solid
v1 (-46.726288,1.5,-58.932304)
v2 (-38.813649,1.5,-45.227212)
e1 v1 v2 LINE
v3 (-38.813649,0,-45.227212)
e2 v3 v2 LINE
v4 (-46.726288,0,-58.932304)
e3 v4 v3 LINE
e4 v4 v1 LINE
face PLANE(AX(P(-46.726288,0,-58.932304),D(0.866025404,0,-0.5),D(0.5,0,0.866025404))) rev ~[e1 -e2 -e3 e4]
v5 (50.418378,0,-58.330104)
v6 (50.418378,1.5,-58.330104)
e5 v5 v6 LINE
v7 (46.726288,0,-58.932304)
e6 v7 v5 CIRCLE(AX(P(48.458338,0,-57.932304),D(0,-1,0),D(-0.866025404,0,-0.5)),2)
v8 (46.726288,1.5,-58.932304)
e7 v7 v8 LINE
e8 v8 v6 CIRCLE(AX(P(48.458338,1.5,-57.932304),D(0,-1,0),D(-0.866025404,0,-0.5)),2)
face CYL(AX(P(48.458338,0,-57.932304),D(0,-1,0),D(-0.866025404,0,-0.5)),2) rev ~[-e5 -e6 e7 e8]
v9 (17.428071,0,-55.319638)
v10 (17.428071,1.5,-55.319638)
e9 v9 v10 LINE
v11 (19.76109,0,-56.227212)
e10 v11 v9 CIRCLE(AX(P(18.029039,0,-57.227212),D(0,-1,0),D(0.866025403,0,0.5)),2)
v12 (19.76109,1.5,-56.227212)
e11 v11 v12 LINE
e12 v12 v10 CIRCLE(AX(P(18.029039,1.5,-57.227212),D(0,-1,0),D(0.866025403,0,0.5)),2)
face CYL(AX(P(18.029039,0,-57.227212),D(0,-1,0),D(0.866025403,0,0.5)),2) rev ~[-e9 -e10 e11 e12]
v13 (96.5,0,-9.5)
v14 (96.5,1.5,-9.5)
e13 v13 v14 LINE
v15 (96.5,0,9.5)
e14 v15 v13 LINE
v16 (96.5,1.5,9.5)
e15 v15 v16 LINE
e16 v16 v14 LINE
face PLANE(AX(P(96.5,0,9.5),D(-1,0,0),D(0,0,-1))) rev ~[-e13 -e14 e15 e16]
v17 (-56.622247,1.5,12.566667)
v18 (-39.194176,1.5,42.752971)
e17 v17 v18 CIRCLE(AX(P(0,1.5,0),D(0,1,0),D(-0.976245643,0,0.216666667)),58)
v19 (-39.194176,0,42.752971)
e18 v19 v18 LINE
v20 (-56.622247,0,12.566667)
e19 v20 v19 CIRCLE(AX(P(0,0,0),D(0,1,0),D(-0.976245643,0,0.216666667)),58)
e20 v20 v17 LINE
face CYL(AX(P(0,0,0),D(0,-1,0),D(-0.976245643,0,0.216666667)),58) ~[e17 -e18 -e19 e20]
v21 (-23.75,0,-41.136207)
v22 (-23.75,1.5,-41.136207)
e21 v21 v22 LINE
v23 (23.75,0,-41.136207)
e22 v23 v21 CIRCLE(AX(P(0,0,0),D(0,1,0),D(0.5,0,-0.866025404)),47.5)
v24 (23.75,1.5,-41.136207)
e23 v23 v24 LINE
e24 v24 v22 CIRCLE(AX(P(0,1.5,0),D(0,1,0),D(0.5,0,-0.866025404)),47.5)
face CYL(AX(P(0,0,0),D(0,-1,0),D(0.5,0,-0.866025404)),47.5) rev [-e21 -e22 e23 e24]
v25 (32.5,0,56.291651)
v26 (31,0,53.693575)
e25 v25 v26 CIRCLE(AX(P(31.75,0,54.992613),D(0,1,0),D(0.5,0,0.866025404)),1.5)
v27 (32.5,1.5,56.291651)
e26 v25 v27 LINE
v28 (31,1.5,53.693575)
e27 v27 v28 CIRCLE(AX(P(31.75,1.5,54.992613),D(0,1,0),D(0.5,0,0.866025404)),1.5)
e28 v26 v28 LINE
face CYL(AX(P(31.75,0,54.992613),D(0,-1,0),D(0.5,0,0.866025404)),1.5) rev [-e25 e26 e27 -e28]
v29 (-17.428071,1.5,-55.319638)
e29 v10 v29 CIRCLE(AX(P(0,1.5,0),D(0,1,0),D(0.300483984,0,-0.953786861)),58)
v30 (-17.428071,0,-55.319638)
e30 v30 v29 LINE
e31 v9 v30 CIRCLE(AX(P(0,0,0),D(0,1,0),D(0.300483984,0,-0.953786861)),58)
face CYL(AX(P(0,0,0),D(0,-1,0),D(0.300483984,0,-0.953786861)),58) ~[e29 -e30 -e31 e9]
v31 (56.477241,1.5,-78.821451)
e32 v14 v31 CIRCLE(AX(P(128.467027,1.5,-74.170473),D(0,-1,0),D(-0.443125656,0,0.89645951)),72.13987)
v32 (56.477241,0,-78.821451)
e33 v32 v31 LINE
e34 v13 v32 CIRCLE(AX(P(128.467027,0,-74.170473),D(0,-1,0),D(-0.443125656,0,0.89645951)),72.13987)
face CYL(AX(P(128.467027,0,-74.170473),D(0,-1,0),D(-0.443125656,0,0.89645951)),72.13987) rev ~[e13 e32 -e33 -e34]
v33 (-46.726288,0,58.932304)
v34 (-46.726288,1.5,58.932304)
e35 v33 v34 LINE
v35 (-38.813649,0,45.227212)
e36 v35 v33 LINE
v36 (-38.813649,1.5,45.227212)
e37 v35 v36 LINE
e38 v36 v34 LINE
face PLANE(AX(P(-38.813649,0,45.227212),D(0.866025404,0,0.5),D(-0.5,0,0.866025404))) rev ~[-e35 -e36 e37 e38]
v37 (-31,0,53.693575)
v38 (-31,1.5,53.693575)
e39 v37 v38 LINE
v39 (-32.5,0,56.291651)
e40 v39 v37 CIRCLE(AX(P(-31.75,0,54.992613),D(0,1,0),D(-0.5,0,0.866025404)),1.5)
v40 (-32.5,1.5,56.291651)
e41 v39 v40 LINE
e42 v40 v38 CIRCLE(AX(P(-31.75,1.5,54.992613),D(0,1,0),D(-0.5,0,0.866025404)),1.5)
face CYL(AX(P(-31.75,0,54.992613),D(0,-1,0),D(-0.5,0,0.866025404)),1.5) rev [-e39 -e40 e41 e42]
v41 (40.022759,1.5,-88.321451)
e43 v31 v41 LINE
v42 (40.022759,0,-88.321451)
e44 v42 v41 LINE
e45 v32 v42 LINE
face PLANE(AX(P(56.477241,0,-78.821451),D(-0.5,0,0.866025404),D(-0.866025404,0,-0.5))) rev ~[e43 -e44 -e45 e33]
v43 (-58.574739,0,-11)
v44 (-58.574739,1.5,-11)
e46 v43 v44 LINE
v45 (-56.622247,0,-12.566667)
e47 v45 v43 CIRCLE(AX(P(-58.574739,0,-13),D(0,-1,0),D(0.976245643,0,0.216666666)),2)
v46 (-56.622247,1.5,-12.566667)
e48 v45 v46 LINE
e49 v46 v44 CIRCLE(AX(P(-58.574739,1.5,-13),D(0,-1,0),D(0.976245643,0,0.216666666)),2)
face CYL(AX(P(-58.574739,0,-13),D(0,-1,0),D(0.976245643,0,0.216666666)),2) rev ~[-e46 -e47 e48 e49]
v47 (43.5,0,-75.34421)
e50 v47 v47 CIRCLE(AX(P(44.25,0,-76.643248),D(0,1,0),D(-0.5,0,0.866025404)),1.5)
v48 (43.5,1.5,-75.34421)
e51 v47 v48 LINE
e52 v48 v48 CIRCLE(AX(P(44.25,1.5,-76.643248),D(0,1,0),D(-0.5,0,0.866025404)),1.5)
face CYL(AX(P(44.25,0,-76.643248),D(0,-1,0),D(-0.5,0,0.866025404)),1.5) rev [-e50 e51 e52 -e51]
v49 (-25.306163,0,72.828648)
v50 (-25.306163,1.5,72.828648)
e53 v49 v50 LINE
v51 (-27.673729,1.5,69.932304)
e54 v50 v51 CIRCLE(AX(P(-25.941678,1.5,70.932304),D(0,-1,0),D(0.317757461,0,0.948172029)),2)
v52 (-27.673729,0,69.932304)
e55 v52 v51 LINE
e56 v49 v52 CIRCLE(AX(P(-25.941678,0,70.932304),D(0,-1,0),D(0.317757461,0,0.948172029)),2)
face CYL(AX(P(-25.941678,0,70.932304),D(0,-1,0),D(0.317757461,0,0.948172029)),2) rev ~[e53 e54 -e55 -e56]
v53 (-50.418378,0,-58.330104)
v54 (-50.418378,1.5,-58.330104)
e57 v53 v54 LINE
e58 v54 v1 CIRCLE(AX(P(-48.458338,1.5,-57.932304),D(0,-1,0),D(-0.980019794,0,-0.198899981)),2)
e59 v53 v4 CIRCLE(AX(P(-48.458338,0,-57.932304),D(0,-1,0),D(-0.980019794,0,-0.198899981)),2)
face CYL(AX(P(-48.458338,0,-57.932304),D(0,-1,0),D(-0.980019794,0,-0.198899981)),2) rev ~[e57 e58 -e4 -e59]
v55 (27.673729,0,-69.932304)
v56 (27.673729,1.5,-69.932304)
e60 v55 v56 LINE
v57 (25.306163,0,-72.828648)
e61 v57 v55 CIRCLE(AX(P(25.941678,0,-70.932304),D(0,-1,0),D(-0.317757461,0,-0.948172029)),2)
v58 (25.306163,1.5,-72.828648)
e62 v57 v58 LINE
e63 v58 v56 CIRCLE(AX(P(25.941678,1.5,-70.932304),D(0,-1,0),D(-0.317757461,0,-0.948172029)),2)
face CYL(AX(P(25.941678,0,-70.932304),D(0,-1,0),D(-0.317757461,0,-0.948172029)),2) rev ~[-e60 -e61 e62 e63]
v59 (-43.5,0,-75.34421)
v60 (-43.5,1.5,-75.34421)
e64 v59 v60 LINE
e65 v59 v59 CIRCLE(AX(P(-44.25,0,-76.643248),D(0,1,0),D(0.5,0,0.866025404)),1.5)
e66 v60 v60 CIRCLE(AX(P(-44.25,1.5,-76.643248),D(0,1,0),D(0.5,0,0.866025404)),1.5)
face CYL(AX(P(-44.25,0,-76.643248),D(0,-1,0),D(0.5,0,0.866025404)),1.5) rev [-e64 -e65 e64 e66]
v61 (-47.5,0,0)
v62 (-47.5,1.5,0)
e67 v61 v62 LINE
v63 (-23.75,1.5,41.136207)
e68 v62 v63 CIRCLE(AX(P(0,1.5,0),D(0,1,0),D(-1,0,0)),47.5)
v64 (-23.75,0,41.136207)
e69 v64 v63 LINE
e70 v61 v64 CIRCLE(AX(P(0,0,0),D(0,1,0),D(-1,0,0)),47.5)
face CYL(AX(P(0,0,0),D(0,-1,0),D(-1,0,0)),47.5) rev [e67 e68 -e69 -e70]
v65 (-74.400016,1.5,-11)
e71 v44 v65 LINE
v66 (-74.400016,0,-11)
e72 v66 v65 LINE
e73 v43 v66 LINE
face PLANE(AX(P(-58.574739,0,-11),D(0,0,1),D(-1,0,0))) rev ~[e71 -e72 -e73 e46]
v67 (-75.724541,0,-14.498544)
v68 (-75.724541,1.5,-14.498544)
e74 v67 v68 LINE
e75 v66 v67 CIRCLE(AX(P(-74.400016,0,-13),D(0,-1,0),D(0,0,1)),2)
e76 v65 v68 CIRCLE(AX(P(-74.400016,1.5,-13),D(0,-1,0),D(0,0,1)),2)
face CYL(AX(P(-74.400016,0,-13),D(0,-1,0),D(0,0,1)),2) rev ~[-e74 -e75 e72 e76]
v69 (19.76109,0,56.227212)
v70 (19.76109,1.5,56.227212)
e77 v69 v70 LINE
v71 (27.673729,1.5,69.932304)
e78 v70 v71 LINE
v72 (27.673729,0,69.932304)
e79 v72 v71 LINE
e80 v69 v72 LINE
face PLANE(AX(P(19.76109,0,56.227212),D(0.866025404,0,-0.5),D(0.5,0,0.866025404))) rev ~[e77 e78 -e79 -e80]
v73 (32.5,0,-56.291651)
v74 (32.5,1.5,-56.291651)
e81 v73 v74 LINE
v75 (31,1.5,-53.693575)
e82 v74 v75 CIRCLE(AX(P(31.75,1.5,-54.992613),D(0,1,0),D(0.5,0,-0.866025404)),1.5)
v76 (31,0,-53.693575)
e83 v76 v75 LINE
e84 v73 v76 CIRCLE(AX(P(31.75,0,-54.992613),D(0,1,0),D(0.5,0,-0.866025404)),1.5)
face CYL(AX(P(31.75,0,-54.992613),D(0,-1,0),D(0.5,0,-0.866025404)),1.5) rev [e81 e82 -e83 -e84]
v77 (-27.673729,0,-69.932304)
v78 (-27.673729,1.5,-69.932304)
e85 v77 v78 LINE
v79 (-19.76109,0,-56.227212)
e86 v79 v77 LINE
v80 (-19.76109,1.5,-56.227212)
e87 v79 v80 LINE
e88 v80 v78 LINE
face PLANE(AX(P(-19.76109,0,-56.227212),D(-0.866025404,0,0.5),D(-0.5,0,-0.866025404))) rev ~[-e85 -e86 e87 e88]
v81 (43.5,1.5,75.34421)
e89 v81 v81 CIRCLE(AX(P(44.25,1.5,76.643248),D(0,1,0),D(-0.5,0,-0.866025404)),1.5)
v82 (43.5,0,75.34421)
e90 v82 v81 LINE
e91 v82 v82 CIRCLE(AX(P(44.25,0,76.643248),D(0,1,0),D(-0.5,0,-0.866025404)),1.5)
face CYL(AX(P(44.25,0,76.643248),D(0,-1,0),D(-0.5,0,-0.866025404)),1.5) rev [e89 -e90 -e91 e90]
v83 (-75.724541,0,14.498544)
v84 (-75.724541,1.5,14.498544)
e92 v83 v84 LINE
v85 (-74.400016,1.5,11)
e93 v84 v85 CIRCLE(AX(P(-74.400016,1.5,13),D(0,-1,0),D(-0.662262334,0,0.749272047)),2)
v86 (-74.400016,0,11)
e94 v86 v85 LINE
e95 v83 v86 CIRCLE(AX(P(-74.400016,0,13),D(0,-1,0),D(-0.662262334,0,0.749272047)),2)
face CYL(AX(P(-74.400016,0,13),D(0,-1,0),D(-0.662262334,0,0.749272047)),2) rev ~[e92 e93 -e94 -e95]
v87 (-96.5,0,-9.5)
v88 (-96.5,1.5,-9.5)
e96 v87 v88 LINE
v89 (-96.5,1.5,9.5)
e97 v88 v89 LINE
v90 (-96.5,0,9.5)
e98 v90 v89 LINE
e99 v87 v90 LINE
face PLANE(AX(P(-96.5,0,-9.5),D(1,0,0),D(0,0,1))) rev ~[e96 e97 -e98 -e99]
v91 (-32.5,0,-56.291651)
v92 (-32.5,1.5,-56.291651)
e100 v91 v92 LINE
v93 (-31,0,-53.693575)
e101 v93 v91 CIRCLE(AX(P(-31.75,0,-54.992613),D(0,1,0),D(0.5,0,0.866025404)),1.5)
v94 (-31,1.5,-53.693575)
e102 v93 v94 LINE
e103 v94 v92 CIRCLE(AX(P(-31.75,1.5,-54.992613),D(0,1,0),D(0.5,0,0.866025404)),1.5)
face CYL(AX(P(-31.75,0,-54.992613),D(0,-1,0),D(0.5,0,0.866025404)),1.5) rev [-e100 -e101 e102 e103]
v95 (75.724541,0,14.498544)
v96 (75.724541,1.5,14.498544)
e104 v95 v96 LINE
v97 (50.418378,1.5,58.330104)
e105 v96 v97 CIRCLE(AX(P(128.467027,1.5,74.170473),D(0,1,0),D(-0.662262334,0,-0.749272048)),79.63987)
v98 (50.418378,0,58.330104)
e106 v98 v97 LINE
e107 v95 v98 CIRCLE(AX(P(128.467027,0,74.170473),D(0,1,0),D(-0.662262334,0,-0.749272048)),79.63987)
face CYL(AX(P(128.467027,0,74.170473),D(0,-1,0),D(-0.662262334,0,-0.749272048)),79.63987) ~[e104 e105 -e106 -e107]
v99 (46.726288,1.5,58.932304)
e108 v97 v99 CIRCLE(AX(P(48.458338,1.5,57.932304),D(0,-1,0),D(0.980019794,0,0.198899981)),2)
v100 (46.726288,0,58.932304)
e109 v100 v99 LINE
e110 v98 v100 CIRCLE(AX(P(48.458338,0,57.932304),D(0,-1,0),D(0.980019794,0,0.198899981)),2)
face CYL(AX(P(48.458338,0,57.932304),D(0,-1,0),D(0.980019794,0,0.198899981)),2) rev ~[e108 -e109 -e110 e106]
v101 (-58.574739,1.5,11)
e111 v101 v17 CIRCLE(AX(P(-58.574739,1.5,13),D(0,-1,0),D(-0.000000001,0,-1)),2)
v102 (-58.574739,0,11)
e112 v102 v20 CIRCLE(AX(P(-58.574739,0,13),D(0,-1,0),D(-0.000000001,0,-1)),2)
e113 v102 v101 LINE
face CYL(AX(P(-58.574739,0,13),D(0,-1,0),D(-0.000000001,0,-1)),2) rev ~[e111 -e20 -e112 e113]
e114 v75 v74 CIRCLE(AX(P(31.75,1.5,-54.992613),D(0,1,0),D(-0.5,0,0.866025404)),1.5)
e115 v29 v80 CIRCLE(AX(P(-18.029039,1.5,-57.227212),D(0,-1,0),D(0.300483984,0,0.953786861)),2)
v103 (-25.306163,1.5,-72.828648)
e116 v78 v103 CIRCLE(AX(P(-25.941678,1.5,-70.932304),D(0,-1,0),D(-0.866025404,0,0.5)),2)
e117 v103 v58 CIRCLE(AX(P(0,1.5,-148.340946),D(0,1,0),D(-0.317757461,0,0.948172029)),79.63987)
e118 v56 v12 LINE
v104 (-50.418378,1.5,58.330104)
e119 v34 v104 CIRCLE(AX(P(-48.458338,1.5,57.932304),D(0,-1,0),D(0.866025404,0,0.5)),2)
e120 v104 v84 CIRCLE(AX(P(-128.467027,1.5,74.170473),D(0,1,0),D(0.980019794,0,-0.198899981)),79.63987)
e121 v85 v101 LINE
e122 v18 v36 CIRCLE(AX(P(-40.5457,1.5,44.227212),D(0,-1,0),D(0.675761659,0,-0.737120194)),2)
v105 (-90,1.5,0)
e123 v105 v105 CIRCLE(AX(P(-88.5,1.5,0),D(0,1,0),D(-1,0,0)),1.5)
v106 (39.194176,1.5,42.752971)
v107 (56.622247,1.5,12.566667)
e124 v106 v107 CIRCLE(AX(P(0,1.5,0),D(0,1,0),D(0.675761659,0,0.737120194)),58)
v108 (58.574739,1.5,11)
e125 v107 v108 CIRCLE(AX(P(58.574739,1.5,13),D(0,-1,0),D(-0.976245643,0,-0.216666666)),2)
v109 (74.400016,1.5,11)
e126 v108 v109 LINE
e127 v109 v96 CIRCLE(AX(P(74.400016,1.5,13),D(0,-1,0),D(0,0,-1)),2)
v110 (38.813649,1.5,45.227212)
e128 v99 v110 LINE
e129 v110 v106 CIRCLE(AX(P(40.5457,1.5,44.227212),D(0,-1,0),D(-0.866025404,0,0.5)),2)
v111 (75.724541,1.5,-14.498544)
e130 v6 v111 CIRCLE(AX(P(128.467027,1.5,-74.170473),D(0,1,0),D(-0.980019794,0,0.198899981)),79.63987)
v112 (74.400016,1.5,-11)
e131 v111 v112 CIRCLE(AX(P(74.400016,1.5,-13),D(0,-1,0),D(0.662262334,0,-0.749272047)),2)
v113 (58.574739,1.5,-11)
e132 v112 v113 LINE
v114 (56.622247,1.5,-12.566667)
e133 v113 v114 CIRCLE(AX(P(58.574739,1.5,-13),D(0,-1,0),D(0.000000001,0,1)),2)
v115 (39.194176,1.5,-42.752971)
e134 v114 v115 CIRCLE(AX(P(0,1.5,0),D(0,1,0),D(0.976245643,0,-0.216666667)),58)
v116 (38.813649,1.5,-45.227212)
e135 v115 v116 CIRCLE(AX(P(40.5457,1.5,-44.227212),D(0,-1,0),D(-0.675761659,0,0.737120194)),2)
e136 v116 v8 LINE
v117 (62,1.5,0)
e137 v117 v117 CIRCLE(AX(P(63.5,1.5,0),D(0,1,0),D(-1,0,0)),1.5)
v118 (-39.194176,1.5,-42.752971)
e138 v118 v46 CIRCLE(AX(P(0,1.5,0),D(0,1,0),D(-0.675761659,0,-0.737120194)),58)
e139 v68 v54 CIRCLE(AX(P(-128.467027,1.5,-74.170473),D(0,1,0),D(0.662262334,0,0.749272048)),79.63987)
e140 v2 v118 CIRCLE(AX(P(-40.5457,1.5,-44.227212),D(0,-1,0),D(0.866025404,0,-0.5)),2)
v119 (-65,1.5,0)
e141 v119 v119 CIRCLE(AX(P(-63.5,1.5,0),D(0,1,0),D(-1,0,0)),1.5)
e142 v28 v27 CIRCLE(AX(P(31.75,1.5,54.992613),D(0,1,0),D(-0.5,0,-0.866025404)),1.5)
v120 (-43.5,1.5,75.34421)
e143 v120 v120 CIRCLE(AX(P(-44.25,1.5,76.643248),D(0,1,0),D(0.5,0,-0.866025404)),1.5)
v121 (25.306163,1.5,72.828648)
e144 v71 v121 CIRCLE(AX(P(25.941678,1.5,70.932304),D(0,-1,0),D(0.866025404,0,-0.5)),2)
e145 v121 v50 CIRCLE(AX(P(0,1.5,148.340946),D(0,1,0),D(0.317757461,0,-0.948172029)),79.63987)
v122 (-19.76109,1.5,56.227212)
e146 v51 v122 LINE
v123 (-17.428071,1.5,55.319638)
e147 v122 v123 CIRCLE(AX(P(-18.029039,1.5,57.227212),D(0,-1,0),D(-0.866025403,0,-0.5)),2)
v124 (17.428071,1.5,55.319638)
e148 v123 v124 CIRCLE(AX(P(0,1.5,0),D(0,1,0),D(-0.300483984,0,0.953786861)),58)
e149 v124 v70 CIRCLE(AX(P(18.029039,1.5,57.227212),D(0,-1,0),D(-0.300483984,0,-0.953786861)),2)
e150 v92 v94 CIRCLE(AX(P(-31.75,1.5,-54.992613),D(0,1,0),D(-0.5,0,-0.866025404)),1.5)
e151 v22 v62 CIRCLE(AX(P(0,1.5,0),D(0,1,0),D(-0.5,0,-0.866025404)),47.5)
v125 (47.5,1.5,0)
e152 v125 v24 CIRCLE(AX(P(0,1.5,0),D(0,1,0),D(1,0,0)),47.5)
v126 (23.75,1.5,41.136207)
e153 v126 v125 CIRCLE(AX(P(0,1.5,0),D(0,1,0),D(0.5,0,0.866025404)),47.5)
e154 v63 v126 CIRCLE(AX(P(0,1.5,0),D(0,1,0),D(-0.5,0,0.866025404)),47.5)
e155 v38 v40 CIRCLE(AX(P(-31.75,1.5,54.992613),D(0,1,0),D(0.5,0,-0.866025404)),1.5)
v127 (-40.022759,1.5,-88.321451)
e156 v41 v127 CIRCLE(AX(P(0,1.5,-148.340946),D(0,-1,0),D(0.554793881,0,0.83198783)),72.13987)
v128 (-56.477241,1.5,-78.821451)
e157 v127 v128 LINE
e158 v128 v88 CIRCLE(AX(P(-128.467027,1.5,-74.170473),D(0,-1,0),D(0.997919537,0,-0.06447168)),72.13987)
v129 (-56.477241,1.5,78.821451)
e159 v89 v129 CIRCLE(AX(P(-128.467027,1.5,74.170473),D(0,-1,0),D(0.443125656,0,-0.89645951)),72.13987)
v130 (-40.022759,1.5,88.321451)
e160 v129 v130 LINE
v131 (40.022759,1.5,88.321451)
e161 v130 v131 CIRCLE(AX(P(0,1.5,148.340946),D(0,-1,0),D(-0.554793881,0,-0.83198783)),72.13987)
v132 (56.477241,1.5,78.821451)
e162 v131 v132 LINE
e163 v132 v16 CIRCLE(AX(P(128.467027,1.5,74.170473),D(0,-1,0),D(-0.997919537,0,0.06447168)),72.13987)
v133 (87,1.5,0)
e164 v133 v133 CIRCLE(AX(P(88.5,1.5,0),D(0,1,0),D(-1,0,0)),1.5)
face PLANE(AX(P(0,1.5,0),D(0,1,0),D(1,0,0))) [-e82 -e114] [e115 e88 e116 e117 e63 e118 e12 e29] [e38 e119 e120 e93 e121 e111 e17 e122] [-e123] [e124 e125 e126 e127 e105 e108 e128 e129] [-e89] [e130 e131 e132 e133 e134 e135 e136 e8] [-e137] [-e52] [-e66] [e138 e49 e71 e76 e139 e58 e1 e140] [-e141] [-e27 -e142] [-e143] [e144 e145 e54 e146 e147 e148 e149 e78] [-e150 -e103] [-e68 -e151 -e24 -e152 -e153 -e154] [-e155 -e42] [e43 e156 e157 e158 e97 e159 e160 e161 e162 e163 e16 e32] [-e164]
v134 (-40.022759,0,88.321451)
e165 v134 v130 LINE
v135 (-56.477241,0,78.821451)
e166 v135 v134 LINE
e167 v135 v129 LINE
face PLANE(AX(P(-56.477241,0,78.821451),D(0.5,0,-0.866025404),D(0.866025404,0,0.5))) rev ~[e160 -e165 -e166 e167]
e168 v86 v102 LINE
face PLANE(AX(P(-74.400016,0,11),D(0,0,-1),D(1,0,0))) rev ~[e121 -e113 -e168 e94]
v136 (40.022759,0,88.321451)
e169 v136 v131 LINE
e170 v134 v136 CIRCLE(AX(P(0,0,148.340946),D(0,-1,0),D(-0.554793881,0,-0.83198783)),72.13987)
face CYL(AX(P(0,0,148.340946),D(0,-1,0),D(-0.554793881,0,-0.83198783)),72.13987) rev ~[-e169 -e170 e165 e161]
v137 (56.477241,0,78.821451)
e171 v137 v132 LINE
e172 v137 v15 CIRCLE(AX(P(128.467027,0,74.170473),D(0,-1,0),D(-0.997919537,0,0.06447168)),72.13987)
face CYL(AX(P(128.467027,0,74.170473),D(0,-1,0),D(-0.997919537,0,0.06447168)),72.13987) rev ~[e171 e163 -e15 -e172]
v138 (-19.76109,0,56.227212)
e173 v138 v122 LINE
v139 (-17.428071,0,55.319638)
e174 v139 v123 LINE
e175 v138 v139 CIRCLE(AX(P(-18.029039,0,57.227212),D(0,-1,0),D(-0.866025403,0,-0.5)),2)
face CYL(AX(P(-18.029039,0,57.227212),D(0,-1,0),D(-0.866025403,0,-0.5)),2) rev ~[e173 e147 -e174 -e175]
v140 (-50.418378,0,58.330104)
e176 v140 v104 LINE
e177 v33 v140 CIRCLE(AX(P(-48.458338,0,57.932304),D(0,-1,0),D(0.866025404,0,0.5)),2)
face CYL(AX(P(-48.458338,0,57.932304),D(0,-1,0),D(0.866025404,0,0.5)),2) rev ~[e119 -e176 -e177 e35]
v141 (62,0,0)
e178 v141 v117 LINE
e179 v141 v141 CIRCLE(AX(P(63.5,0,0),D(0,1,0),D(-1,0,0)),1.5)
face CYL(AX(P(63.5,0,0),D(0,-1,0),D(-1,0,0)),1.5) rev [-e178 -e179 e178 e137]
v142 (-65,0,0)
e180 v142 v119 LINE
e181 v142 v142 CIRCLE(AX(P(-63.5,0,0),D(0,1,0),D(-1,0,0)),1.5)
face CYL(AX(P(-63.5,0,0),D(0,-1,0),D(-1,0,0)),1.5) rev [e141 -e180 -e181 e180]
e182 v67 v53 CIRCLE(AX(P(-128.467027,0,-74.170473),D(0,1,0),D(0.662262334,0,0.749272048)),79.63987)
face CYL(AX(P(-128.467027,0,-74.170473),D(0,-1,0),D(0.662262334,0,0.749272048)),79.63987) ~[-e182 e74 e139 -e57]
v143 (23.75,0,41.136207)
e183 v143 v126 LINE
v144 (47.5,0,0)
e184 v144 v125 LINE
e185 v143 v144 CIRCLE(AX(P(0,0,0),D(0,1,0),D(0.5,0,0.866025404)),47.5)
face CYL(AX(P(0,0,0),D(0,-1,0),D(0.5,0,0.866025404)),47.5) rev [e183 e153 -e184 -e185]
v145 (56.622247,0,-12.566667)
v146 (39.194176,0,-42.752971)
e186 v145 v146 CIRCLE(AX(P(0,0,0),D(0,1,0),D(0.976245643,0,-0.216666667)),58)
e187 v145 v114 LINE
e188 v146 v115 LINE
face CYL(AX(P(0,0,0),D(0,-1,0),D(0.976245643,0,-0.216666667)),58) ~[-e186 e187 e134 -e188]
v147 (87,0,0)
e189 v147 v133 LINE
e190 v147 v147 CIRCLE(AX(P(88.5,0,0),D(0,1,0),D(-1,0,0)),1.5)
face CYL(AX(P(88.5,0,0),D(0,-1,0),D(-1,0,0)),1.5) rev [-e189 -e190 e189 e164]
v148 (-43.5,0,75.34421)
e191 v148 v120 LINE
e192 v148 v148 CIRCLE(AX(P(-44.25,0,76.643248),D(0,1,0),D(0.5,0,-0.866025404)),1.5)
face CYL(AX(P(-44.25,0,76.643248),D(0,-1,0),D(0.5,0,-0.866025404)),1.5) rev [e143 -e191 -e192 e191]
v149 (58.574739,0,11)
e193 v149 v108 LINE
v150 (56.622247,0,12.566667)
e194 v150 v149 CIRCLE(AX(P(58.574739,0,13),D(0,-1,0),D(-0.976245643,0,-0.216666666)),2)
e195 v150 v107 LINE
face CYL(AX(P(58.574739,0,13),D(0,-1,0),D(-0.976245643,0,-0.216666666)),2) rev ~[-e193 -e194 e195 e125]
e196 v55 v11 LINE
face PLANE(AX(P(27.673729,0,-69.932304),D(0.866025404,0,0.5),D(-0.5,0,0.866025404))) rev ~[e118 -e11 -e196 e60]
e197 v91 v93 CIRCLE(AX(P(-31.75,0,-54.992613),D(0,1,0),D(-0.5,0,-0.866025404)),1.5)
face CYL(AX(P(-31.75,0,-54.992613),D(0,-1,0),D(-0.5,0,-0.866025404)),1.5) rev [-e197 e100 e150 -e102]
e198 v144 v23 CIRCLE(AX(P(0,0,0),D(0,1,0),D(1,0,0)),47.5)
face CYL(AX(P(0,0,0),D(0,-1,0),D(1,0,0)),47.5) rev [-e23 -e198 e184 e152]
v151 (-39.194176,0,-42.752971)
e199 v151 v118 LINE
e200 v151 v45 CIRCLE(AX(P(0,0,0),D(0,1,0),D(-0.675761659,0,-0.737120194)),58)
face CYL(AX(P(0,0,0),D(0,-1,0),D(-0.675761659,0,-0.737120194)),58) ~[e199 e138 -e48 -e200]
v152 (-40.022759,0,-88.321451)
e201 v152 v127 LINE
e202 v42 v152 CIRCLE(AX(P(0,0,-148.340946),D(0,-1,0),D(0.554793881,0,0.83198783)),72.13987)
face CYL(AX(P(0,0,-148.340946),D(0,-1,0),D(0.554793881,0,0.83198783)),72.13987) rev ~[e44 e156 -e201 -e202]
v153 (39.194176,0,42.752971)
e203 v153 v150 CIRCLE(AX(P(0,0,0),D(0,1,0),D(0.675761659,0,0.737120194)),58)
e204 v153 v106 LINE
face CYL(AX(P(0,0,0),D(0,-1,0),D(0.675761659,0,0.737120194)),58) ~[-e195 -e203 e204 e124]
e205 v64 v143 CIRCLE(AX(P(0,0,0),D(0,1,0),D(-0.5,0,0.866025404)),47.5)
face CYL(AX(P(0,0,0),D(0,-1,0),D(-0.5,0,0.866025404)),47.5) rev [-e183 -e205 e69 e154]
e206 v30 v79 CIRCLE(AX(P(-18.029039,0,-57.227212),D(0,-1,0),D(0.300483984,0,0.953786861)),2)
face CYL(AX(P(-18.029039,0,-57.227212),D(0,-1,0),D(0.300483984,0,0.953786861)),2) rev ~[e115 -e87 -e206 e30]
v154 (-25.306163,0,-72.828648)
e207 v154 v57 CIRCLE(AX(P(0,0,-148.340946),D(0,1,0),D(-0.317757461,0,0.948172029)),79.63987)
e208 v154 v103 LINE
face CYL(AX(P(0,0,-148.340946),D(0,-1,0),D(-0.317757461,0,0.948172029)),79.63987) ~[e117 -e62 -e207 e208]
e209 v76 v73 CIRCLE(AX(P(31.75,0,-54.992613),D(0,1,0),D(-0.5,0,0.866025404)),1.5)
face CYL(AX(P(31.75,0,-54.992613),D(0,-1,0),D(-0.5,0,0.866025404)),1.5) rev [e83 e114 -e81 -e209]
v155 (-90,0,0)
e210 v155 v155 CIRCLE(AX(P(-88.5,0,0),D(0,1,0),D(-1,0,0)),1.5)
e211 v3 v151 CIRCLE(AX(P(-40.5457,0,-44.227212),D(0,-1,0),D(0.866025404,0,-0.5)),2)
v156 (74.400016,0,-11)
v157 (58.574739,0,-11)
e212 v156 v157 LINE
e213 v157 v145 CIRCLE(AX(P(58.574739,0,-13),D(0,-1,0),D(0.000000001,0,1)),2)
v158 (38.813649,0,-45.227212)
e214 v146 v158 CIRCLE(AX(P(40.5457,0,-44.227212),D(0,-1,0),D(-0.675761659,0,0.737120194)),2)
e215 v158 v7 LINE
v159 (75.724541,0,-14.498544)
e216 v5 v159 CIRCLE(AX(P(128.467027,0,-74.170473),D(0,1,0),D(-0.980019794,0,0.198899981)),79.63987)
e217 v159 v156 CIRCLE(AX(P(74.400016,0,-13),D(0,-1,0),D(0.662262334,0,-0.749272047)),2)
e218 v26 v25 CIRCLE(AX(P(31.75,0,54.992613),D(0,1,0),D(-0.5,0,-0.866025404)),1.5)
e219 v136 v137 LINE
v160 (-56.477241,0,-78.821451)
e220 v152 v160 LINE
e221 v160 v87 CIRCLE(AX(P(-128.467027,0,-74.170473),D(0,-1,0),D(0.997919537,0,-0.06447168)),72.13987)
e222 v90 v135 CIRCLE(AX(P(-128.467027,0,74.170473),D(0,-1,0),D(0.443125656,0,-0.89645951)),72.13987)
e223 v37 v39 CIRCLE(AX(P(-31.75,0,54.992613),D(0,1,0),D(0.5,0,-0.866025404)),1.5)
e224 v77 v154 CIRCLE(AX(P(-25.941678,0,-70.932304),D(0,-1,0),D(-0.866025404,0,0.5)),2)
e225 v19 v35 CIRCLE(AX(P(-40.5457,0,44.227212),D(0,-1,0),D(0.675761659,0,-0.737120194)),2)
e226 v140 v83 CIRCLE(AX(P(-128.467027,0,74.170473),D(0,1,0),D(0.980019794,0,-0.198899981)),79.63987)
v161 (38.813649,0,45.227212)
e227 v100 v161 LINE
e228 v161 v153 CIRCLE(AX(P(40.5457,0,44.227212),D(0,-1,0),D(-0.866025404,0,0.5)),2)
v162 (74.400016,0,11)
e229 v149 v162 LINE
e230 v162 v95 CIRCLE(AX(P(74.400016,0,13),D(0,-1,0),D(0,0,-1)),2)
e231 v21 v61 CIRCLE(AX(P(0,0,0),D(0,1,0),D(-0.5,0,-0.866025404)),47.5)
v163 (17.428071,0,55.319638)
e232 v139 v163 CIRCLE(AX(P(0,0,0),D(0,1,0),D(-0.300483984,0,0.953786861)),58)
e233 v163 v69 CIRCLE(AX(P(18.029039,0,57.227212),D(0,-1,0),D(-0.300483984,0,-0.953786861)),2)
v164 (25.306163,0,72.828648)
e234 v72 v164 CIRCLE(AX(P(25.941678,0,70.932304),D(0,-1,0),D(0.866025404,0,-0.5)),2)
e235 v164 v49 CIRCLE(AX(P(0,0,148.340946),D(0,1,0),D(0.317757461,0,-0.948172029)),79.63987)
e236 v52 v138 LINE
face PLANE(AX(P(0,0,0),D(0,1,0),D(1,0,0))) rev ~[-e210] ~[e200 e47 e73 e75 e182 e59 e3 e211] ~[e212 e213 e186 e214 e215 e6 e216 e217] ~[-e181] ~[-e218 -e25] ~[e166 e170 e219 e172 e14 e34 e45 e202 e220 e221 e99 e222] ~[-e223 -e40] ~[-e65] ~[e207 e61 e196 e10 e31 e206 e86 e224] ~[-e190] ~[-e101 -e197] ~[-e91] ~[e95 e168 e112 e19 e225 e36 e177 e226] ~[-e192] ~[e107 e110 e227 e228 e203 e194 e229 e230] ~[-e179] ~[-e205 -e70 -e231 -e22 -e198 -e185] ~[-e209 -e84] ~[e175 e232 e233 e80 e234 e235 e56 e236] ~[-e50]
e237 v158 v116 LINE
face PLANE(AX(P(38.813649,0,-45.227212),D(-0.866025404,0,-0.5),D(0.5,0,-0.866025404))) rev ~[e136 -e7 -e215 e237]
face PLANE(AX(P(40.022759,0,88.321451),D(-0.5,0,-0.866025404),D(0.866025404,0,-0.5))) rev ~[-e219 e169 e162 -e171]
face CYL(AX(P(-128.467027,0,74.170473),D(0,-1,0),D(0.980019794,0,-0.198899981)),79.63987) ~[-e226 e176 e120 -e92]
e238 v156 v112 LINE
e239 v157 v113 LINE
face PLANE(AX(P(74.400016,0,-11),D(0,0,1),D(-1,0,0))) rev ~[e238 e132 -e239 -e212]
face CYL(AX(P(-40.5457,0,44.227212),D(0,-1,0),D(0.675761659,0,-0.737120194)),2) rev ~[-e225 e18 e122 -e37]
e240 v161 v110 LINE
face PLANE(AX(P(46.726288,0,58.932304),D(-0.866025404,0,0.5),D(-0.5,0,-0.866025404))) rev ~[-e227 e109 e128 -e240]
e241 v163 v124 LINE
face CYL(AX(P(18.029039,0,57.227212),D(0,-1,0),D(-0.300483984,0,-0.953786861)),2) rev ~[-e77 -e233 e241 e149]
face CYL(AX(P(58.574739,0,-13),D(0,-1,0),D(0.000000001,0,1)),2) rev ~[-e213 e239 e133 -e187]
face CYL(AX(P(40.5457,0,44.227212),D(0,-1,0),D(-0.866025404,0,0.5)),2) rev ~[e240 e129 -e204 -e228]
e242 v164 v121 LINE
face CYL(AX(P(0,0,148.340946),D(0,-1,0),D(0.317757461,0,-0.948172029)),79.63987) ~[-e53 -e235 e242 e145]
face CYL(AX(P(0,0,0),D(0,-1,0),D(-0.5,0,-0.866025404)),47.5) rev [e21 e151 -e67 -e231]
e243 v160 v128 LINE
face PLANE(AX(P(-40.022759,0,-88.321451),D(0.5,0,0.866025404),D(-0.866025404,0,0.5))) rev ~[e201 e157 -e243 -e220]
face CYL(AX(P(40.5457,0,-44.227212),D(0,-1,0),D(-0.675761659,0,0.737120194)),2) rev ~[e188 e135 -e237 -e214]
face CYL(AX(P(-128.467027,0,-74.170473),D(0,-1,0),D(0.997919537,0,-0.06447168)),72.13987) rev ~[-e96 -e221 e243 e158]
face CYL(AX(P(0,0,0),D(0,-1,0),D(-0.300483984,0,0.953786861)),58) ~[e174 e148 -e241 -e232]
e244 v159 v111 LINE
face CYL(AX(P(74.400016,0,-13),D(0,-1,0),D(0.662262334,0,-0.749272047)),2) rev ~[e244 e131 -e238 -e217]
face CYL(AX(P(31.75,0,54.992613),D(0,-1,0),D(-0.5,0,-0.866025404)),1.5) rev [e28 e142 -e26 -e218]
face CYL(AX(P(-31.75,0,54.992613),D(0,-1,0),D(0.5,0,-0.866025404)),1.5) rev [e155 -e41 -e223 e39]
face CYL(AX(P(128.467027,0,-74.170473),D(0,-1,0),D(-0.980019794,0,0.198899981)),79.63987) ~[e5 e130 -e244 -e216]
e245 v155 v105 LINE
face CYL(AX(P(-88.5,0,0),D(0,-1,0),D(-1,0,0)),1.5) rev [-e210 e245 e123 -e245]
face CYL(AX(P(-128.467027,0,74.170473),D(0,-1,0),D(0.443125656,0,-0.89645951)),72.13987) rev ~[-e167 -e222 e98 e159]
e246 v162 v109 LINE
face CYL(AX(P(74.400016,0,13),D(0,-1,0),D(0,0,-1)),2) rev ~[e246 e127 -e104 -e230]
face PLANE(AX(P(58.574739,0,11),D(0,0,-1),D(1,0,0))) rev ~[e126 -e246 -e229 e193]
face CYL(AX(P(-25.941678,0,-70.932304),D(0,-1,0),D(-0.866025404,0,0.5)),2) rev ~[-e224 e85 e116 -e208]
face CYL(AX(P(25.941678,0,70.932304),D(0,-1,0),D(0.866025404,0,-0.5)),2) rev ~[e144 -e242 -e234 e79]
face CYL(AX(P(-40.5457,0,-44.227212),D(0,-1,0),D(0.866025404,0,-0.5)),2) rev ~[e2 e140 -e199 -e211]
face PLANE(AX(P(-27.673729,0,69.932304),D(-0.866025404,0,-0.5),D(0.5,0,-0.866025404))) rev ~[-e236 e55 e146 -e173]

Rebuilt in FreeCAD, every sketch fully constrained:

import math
import FreeCAD as App
import Part
import Sketcher
from FreeCAD import Vector
Q = App.Units.Quantity

doc = App.newDocument("Part")
body = doc.addObject("PartDesign::Body", "Body")

# Sketch on XZ plane
sketch1 = doc.addObject("Sketcher::SketchObject", "Sketch")
body.addObject(sketch1)
sketch1.AttachmentSupport = (doc.XZ_Plane, [""])
sketch1.MapMode = "FlatFace"
sketch1.addGeometry([
    Part.LineSegment(Vector(-40.022759, -88.321451, 0), Vector(-56.477241, -78.821451, 0)),  # 0
    Part.ArcOfCircle(Part.Circle(Vector(-128.467027, -74.170473, 0), Vector(0, 0, 1), 72.13987), math.radians(-3.696519), math.radians(63.696519)),  # 1
    Part.LineSegment(Vector(-96.5, -9.5, 0), Vector(-96.5, 9.5, 0)),  # 2
    Part.ArcOfCircle(Part.Circle(Vector(-128.467027, 74.170473, 0), Vector(0, 0, 1), 72.13987), math.radians(-63.696519), math.radians(3.696519)),  # 3
    Part.LineSegment(Vector(-56.477241, 78.821451, 0), Vector(-40.022759, 88.321451, 0)),  # 4
    Part.ArcOfCircle(Part.Circle(Vector(0, 148.340946, 0), Vector(0, 0, 1), 72.13987), math.radians(-123.696519), math.radians(-56.303481)),  # 5
    Part.LineSegment(Vector(40.022759, 88.321451, 0), Vector(56.477241, 78.821451, 0)),  # 6
    Part.ArcOfCircle(Part.Circle(Vector(128.467027, 74.170473, 0), Vector(0, 0, 1), 72.13987), math.radians(176.303481), math.radians(243.696519)),  # 7
    Part.LineSegment(Vector(96.5, 9.5, 0), Vector(96.5, -9.5, 0)),  # 8
    Part.ArcOfCircle(Part.Circle(Vector(128.467027, -74.170473, 0), Vector(0, 0, 1), 72.13987), math.radians(116.303481), math.radians(183.696519)),  # 9
    Part.LineSegment(Vector(56.477241, -78.821451, 0), Vector(40.022759, -88.321451, 0)),  # 10
    Part.ArcOfCircle(Part.Circle(Vector(0, -148.340946, 0), Vector(0, 0, 1), 72.13987), math.radians(56.303481), math.radians(123.696519)),  # 11
    Part.Circle(Vector(-44.25, 76.643248, 0), Vector(0, 0, 1), 1.5),  # 12
    Part.ArcOfCircle(Part.Circle(Vector(-31.75, 54.992613, 0), Vector(0, 0, 1), 1.5), math.radians(-60), math.radians(120)),  # 13
    Part.ArcOfCircle(Part.Circle(Vector(-31.75, 54.992613, 0), Vector(0, 0, 1), 1.5), math.radians(120), math.radians(300)),  # 14
    Part.ArcOfCircle(Part.Circle(Vector(-74.400016, 13, 0), Vector(0, 0, 1), 2), math.radians(131.47264), math.radians(270)),  # 15
    Part.LineSegment(Vector(-74.400016, 11, 0), Vector(-58.574739, 11, 0)),  # 16
    Part.ArcOfCircle(Part.Circle(Vector(-58.574739, 13, 0), Vector(0, 0, 1), 2), math.radians(-90), math.radians(-12.513325)),  # 17
    Part.ArcOfCircle(Part.Circle(Vector(0, 0, 0), Vector(0, 0, 1), 58), math.radians(132.513325), math.radians(167.486675)),  # 18
    Part.ArcOfCircle(Part.Circle(Vector(-40.5457, 44.227212, 0), Vector(0, 0, 1), 2), math.radians(-47.486675), math.radians(30)),  # 19
    Part.LineSegment(Vector(-38.813649, 45.227212, 0), Vector(-46.726288, 58.932304, 0)),  # 20
    Part.ArcOfCircle(Part.Circle(Vector(-48.458338, 57.932304, 0), Vector(0, 0, 1), 2), math.radians(30), math.radians(168.52736)),  # 21
    Part.ArcOfCircle(Part.Circle(Vector(-128.467027, 74.170473, 0), Vector(0, 0, 1), 79.63987), math.radians(-48.52736), math.radians(-11.47264)),  # 22
    Part.ArcOfCircle(Part.Circle(Vector(-25.941678, 70.932304, 0), Vector(0, 0, 1), 2), math.radians(71.47264), math.radians(210)),  # 23
    Part.LineSegment(Vector(-27.673729, 69.932304, 0), Vector(-19.76109, 56.227212, 0)),  # 24
    Part.ArcOfCircle(Part.Circle(Vector(-18.029039, 57.227212, 0), Vector(0, 0, 1), 2), math.radians(-150), math.radians(-72.513325)),  # 25
    Part.ArcOfCircle(Part.Circle(Vector(0, 0, 0), Vector(0, 0, 1), 58), math.radians(72.513325), math.radians(107.486675)),  # 26
    Part.ArcOfCircle(Part.Circle(Vector(18.029039, 57.227212, 0), Vector(0, 0, 1), 2), math.radians(-107.486675), math.radians(-30)),  # 27
    Part.LineSegment(Vector(19.76109, 56.227212, 0), Vector(27.673729, 69.932304, 0)),  # 28
    Part.ArcOfCircle(Part.Circle(Vector(25.941678, 70.932304, 0), Vector(0, 0, 1), 2), math.radians(-30), math.radians(108.52736)),  # 29
    Part.ArcOfCircle(Part.Circle(Vector(0, 148.340946, 0), Vector(0, 0, 1), 79.63987), math.radians(-108.52736), math.radians(-71.47264)),  # 30
    Part.Circle(Vector(44.25, 76.643248, 0), Vector(0, 0, 1), 1.5),  # 31
    Part.ArcOfCircle(Part.Circle(Vector(31.75, 54.992613, 0), Vector(0, 0, 1), 1.5), math.radians(-120), math.radians(60)),  # 32
    Part.ArcOfCircle(Part.Circle(Vector(31.75, 54.992613, 0), Vector(0, 0, 1), 1.5), math.radians(60), math.radians(240)),  # 33
    Part.ArcOfCircle(Part.Circle(Vector(48.458338, 57.932304, 0), Vector(0, 0, 1), 2), math.radians(11.47264), math.radians(150)),  # 34
    Part.LineSegment(Vector(46.726288, 58.932304, 0), Vector(38.813649, 45.227212, 0)),  # 35
    Part.ArcOfCircle(Part.Circle(Vector(40.5457, 44.227212, 0), Vector(0, 0, 1), 2), math.radians(150), math.radians(227.486675)),  # 36
    Part.ArcOfCircle(Part.Circle(Vector(0, 0, 0), Vector(0, 0, 1), 58), math.radians(12.513325), math.radians(47.486675)),  # 37
    Part.ArcOfCircle(Part.Circle(Vector(58.574739, 13, 0), Vector(0, 0, 1), 2), math.radians(-167.486675), math.radians(-90)),  # 38
    Part.LineSegment(Vector(58.574739, 11, 0), Vector(74.400016, 11, 0)),  # 39
    Part.ArcOfCircle(Part.Circle(Vector(74.400016, 13, 0), Vector(0, 0, 1), 2), math.radians(-90), math.radians(48.52736)),  # 40
    Part.ArcOfCircle(Part.Circle(Vector(128.467027, 74.170473, 0), Vector(0, 0, 1), 79.63987), math.radians(-168.52736), math.radians(-131.47264)),  # 41
    Part.Circle(Vector(-88.5, 0, 0), Vector(0, 0, 1), 1.5),  # 42
    Part.Circle(Vector(-63.5, 0, 0), Vector(0, 0, 1), 1.5),  # 43
    Part.ArcOfCircle(Part.Circle(Vector(-48.458338, -57.932304, 0), Vector(0, 0, 1), 2), math.radians(-168.52736), math.radians(-30)),  # 44
    Part.LineSegment(Vector(-46.726288, -58.932304, 0), Vector(-38.813649, -45.227212, 0)),  # 45
    Part.ArcOfCircle(Part.Circle(Vector(-40.5457, -44.227212, 0), Vector(0, 0, 1), 2), math.radians(-30), math.radians(47.486675)),  # 46
    Part.ArcOfCircle(Part.Circle(Vector(0, 0, 0), Vector(0, 0, 1), 58), math.radians(-167.486675), math.radians(-132.513325)),  # 47
    Part.ArcOfCircle(Part.Circle(Vector(-58.574739, -13, 0), Vector(0, 0, 1), 2), math.radians(12.513325), math.radians(90)),  # 48
    Part.LineSegment(Vector(-58.574739, -11, 0), Vector(-74.400016, -11, 0)),  # 49
    Part.ArcOfCircle(Part.Circle(Vector(-74.400016, -13, 0), Vector(0, 0, 1), 2), math.radians(90), math.radians(228.52736)),  # 50
    Part.ArcOfCircle(Part.Circle(Vector(-128.467027, -74.170473, 0), Vector(0, 0, 1), 79.63987), math.radians(11.47264), math.radians(48.52736)),  # 51
    Part.ArcOfCircle(Part.Circle(Vector(-31.75, -54.992613, 0), Vector(0, 0, 1), 1.5), math.radians(60), math.radians(240)),  # 52
    Part.ArcOfCircle(Part.Circle(Vector(-31.75, -54.992613, 0), Vector(0, 0, 1), 1.5), math.radians(-120), math.radians(60)),  # 53
    Part.Circle(Vector(-44.25, -76.643248, 0), Vector(0, 0, 1), 1.5),  # 54
    Part.ArcOfCircle(Part.Circle(Vector(0, 0, 0), Vector(0, 0, 1), 47.5), math.radians(180), math.radians(240)),  # 55
    Part.ArcOfCircle(Part.Circle(Vector(0, 0, 0), Vector(0, 0, 1), 47.5), math.radians(-120), math.radians(-60)),  # 56
    Part.ArcOfCircle(Part.Circle(Vector(0, 0, 0), Vector(0, 0, 1), 47.5), math.radians(-60), math.radians(0)),  # 57
    Part.ArcOfCircle(Part.Circle(Vector(0, 0, 0), Vector(0, 0, 1), 47.5), math.radians(0), math.radians(60)),  # 58
    Part.ArcOfCircle(Part.Circle(Vector(0, 0, 0), Vector(0, 0, 1), 47.5), math.radians(60), math.radians(120)),  # 59
    Part.ArcOfCircle(Part.Circle(Vector(0, 0, 0), Vector(0, 0, 1), 47.5), math.radians(120), math.radians(180)),  # 60
    Part.Circle(Vector(63.5, 0, 0), Vector(0, 0, 1), 1.5),  # 61
    Part.Circle(Vector(88.5, 0, 0), Vector(0, 0, 1), 1.5),  # 62
    Part.ArcOfCircle(Part.Circle(Vector(74.400016, -13, 0), Vector(0, 0, 1), 2), math.radians(-48.52736), math.radians(90)),  # 63
    Part.LineSegment(Vector(74.400016, -11, 0), Vector(58.574739, -11, 0)),  # 64
    Part.ArcOfCircle(Part.Circle(Vector(58.574739, -13, 0), Vector(0, 0, 1), 2), math.radians(90), math.radians(167.486675)),  # 65
    Part.ArcOfCircle(Part.Circle(Vector(0, 0, 0), Vector(0, 0, 1), 58), math.radians(-47.486675), math.radians(-12.513325)),  # 66
    Part.ArcOfCircle(Part.Circle(Vector(40.5457, -44.227212, 0), Vector(0, 0, 1), 2), math.radians(132.513325), math.radians(210)),  # 67
    Part.LineSegment(Vector(38.813649, -45.227212, 0), Vector(46.726288, -58.932304, 0)),  # 68
    Part.ArcOfCircle(Part.Circle(Vector(48.458338, -57.932304, 0), Vector(0, 0, 1), 2), math.radians(-150), math.radians(-11.47264)),  # 69
    Part.ArcOfCircle(Part.Circle(Vector(128.467027, -74.170473, 0), Vector(0, 0, 1), 79.63987), math.radians(131.47264), math.radians(168.52736)),  # 70
    Part.ArcOfCircle(Part.Circle(Vector(31.75, -54.992613, 0), Vector(0, 0, 1), 1.5), math.radians(120), math.radians(300)),  # 71
    Part.ArcOfCircle(Part.Circle(Vector(31.75, -54.992613, 0), Vector(0, 0, 1), 1.5), math.radians(-60), math.radians(120)),  # 72
    Part.ArcOfCircle(Part.Circle(Vector(25.941678, -70.932304, 0), Vector(0, 0, 1), 2), math.radians(-108.52736), math.radians(30)),  # 73
    Part.LineSegment(Vector(27.673729, -69.932304, 0), Vector(19.76109, -56.227212, 0)),  # 74
    Part.ArcOfCircle(Part.Circle(Vector(18.029039, -57.227212, 0), Vector(0, 0, 1), 2), math.radians(30), math.radians(107.486675)),  # 75
    Part.ArcOfCircle(Part.Circle(Vector(0, 0, 0), Vector(0, 0, 1), 58), math.radians(-107.486675), math.radians(-72.513325)),  # 76
    Part.ArcOfCircle(Part.Circle(Vector(-18.029039, -57.227212, 0), Vector(0, 0, 1), 2), math.radians(72.513325), math.radians(150)),  # 77
    Part.LineSegment(Vector(-19.76109, -56.227212, 0), Vector(-27.673729, -69.932304, 0)),  # 78
    Part.ArcOfCircle(Part.Circle(Vector(-25.941678, -70.932304, 0), Vector(0, 0, 1), 2), math.radians(150), math.radians(288.52736)),  # 79
    Part.ArcOfCircle(Part.Circle(Vector(0, -148.340946, 0), Vector(0, 0, 1), 79.63987), math.radians(71.47264), math.radians(108.52736)),  # 80
    Part.Circle(Vector(44.25, -76.643248, 0), Vector(0, 0, 1), 1.5),  # 81
], False)
sketch1.addConstraint([
    Sketcher.Constraint("Coincident", 0, 2, 1, 1),
    Sketcher.Constraint("Coincident", 1, 2, 2, 1),
    Sketcher.Constraint("Coincident", 2, 2, 3, 1),
    Sketcher.Constraint("Coincident", 3, 2, 4, 1),
    Sketcher.Constraint("Coincident", 4, 2, 5, 1),
    Sketcher.Constraint("Coincident", 5, 2, 6, 1),
    Sketcher.Constraint("Coincident", 6, 2, 7, 1),
    Sketcher.Constraint("Coincident", 7, 2, 8, 1),
    Sketcher.Constraint("Coincident", 8, 2, 9, 1),
    Sketcher.Constraint("Coincident", 9, 2, 10, 1),
    Sketcher.Constraint("Coincident", 10, 2, 11, 1),
    Sketcher.Constraint("Coincident", 11, 2, 0, 1),
    Sketcher.Constraint("Tangent", 13, 1, 14, 2),
    Sketcher.Constraint("Coincident", 14, 1, 13, 2),
    Sketcher.Constraint("Tangent", 15, 2, 16, 1),
    Sketcher.Constraint("Tangent", 16, 2, 17, 1),
    Sketcher.Constraint("Tangent", 17, 2, 18, 2),
    Sketcher.Constraint("Tangent", 18, 1, 19, 1),
    Sketcher.Constraint("Tangent", 19, 2, 20, 1),
    Sketcher.Constraint("Tangent", 20, 2, 21, 1),
    Sketcher.Constraint("Tangent", 21, 2, 22, 2),
    Sketcher.Constraint("Tangent", 22, 1, 15, 1),
    Sketcher.Constraint("Tangent", 23, 2, 24, 1),
    Sketcher.Constraint("Tangent", 24, 2, 25, 1),
    Sketcher.Constraint("Tangent", 25, 2, 26, 2),
    Sketcher.Constraint("Tangent", 26, 1, 27, 1),
    Sketcher.Constraint("Tangent", 27, 2, 28, 1),
    Sketcher.Constraint("Tangent", 28, 2, 29, 1),
    Sketcher.Constraint("Tangent", 29, 2, 30, 2),
    Sketcher.Constraint("Tangent", 30, 1, 23, 1),
    Sketcher.Constraint("Tangent", 32, 1, 33, 2),
    Sketcher.Constraint("Coincident", 33, 1, 32, 2),
    Sketcher.Constraint("Tangent", 34, 2, 35, 1),
    Sketcher.Constraint("Tangent", 35, 2, 36, 1),
    Sketcher.Constraint("Tangent", 36, 2, 37, 2),
    Sketcher.Constraint("Tangent", 37, 1, 38, 1),
    Sketcher.Constraint("Tangent", 38, 2, 39, 1),
    Sketcher.Constraint("Tangent", 39, 2, 40, 1),
    Sketcher.Constraint("Tangent", 40, 2, 41, 2),
    Sketcher.Constraint("Tangent", 41, 1, 34, 1),
    Sketcher.Constraint("Tangent", 44, 2, 45, 1),
    Sketcher.Constraint("Tangent", 45, 2, 46, 1),
    Sketcher.Constraint("Tangent", 46, 2, 47, 2),
    Sketcher.Constraint("Tangent", 47, 1, 48, 1),
    Sketcher.Constraint("Tangent", 48, 2, 49, 1),
    Sketcher.Constraint("Tangent", 49, 2, 50, 1),
    Sketcher.Constraint("Tangent", 50, 2, 51, 2),
    Sketcher.Constraint("Tangent", 51, 1, 44, 1),
    Sketcher.Constraint("Tangent", 52, 1, 53, 2),
    Sketcher.Constraint("Coincident", 53, 1, 52, 2),
    Sketcher.Constraint("Tangent", 55, 2, 56, 1),
    Sketcher.Constraint("Tangent", 56, 2, 57, 1),
    Sketcher.Constraint("Tangent", 57, 2, 58, 1),
    Sketcher.Constraint("Tangent", 58, 2, 59, 1),
    Sketcher.Constraint("Tangent", 59, 2, 60, 1),
    Sketcher.Constraint("Tangent", 60, 2, 55, 1),
    Sketcher.Constraint("Tangent", 63, 2, 64, 1),
    Sketcher.Constraint("Tangent", 64, 2, 65, 1),
    Sketcher.Constraint("Tangent", 65, 2, 66, 2),
    Sketcher.Constraint("Tangent", 66, 1, 67, 1),
    Sketcher.Constraint("Tangent", 67, 2, 68, 1),
    Sketcher.Constraint("Tangent", 68, 2, 69, 1),
    Sketcher.Constraint("Tangent", 69, 2, 70, 2),
    Sketcher.Constraint("Tangent", 70, 1, 63, 1),
    Sketcher.Constraint("Tangent", 71, 1, 72, 2),
    Sketcher.Constraint("Coincident", 72, 1, 71, 2),
    Sketcher.Constraint("Tangent", 73, 2, 74, 1),
    Sketcher.Constraint("Tangent", 74, 2, 75, 1),
    Sketcher.Constraint("Tangent", 75, 2, 76, 2),
    Sketcher.Constraint("Tangent", 76, 1, 77, 1),
    Sketcher.Constraint("Tangent", 77, 2, 78, 1),
    Sketcher.Constraint("Tangent", 78, 2, 79, 1),
    Sketcher.Constraint("Tangent", 79, 2, 80, 2),
    Sketcher.Constraint("Tangent", 80, 1, 73, 1),
    Sketcher.Constraint("Vertical", 2),
    Sketcher.Constraint("Vertical", 8),
    Sketcher.Constraint("Horizontal", 16),
    Sketcher.Constraint("Horizontal", 39),
    Sketcher.Constraint("Horizontal", 49),
    Sketcher.Constraint("Horizontal", 64),
    Sketcher.Constraint("Coincident", 18, 3, -1, 1),
    Sketcher.Constraint("Coincident", 26, 3, -1, 1),
    Sketcher.Constraint("Coincident", 37, 3, -1, 1),
    Sketcher.Constraint("Coincident", 47, 3, -1, 1),
    Sketcher.Constraint("Coincident", 55, 3, -1, 1),
    Sketcher.Constraint("Coincident", 57, 3, -1, 1),
    Sketcher.Constraint("Coincident", 66, 3, -1, 1),
    Sketcher.Constraint("Coincident", 76, 3, -1, 1),
    Sketcher.Constraint("Coincident", 22, 3, 3, 3),
    Sketcher.Constraint("Coincident", 30, 3, 5, 3),
    Sketcher.Constraint("Coincident", 41, 3, 7, 3),
    Sketcher.Constraint("Coincident", 51, 3, 1, 3),
    Sketcher.Constraint("Coincident", 70, 3, 9, 3),
    Sketcher.Constraint("Coincident", 80, 3, 11, 3),
    Sketcher.Constraint("Equal", 1, 3),
    Sketcher.Constraint("Equal", 3, 5),
    Sketcher.Constraint("Equal", 5, 7),
    Sketcher.Constraint("Equal", 7, 9),
    Sketcher.Constraint("Equal", 9, 11),
    Sketcher.Constraint("Equal", 12, 13),
    Sketcher.Constraint("Equal", 15, 17),
    Sketcher.Constraint("Equal", 17, 19),
    Sketcher.Constraint("Equal", 19, 21),
    Sketcher.Constraint("Equal", 21, 23),
    Sketcher.Constraint("Equal", 23, 25),
    Sketcher.Constraint("Equal", 18, 26),
    Sketcher.Constraint("Equal", 25, 27),
    Sketcher.Constraint("Equal", 27, 29),
    Sketcher.Constraint("Equal", 22, 30),
    Sketcher.Constraint("Equal", 14, 31),
    Sketcher.Constraint("Equal", 31, 32),
    Sketcher.Constraint("Equal", 29, 34),
    Sketcher.Constraint("Equal", 34, 36),
    Sketcher.Constraint("Equal", 26, 37),
    Sketcher.Constraint("Equal", 36, 38),
    Sketcher.Constraint("Equal", 38, 40),
    Sketcher.Constraint("Equal", 30, 41),
    Sketcher.Constraint("Equal", 33, 42),
    Sketcher.Constraint("Equal", 42, 43),
    Sketcher.Constraint("Equal", 40, 44),
    Sketcher.Constraint("Equal", 44, 46),
    Sketcher.Constraint("Equal", 37, 47),
    Sketcher.Constraint("Equal", 46, 48),
    Sketcher.Constraint("Equal", 48, 50),
    Sketcher.Constraint("Equal", 41, 51),
    Sketcher.Constraint("Equal", 43, 52),
    Sketcher.Constraint("Equal", 53, 54),
    Sketcher.Constraint("Equal", 57, 58),
    Sketcher.Constraint("Equal", 54, 61),
    Sketcher.Constraint("Equal", 61, 62),
    Sketcher.Constraint("Equal", 50, 63),
    Sketcher.Constraint("Equal", 63, 65),
    Sketcher.Constraint("Equal", 47, 66),
    Sketcher.Constraint("Equal", 65, 67),
    Sketcher.Constraint("Equal", 67, 69),
    Sketcher.Constraint("Equal", 51, 70),
    Sketcher.Constraint("Equal", 62, 71),
    Sketcher.Constraint("Equal", 69, 73),
    Sketcher.Constraint("Equal", 73, 75),
    Sketcher.Constraint("Equal", 66, 76),
    Sketcher.Constraint("Equal", 75, 77),
    Sketcher.Constraint("Equal", 77, 79),
    Sketcher.Constraint("Equal", 70, 80),
    Sketcher.Constraint("Equal", 72, 81),
    Sketcher.Constraint("Symmetric", 1, 3, 7, 3, -1, 1),
    Sketcher.Constraint("Symmetric", 3, 3, 9, 3, -1, 1),
    Sketcher.Constraint("Symmetric", 5, 3, 11, 3, -1, 1),
    Sketcher.Constraint("Symmetric", 32, 3, 52, 3, -1, 1),
    Sketcher.Constraint("Symmetric", 31, 3, 54, 3, -1, 1),
    Sketcher.Constraint("Symmetric", 43, 3, 61, 3, -1, 1),
    Sketcher.Constraint("Symmetric", 42, 3, 62, 3, -1, 1),
    Sketcher.Constraint("Symmetric", 13, 3, 71, 3, -1, 1),
    Sketcher.Constraint("Symmetric", 12, 3, 81, 3, -1, 1),
    Sketcher.Constraint("Symmetric", 34, 2, 44, 2, -1, 1),
    Sketcher.Constraint("Symmetric", 19, 2, 67, 2, -1, 1),
    Sketcher.Constraint("Symmetric", 23, 2, 73, 2, -1, 1),
    Sketcher.Constraint("Symmetric", 27, 2, 77, 2, -1, 1),
    Sketcher.Constraint("Symmetric", 3, 3, 7, 3, -2),
    Sketcher.Constraint("Symmetric", 23, 3, 29, 3, -2),
    Sketcher.Constraint("Symmetric", 12, 3, 31, 3, -2),
    Sketcher.Constraint("Symmetric", 13, 3, 32, 3, -2),
    Sketcher.Constraint("Symmetric", 20, 2, 34, 2, -2),
    Sketcher.Constraint("PointOnObject", 42, 3, -1),
    Sketcher.Constraint("PointOnObject", 43, 3, -1),
    Sketcher.Constraint("PointOnObject", 57, 2, -1),
    Sketcher.Constraint("PointOnObject", 60, 2, -1),
    Sketcher.Constraint("Parallel", 0, 6),
    Sketcher.Constraint("Parallel", 4, 10),
    Sketcher.Constraint("Perpendicular", 10, 20),
    Sketcher.Constraint("Parallel", 20, 24),
    Sketcher.Constraint("Perpendicular", 6, 28),
    Sketcher.Constraint("Parallel", 28, 35),
    Sketcher.Constraint("Horizontal", 17, 3, 38, 3),
    Sketcher.Constraint("Horizontal", 50, 3, 63, 3),
    Sketcher.Constraint("Horizontal", 4, 2, 5, 2),
    Sketcher.Constraint("Horizontal", 2, 2, 7, 2),
    Sketcher.Constraint("Horizontal", 0, 2, 9, 2),
    Sketcher.Constraint("Horizontal", 13, 1, 32, 1),
    Sketcher.Constraint("Horizontal", 14, 1, 33, 1),
    Sketcher.Constraint("Horizontal", 55, 2, 56, 2),
    Sketcher.Constraint("Horizontal", 58, 2, 59, 2),
    Sketcher.Constraint("Horizontal", 52, 1, 71, 1),
    Sketcher.Constraint("Horizontal", 53, 1, 72, 1),
    Sketcher.Constraint("Vertical", 17, 3, 48, 3),
    Sketcher.Constraint("Vertical", 0, 2, 3, 2),
    Sketcher.Constraint("Vertical", 13, 1, 52, 1),
    Sketcher.Constraint("Vertical", 14, 1, 53, 1),
    Sketcher.Constraint("Vertical", 56, 2, 58, 2),
    Sketcher.Constraint("Equal", 20, 24),
    Sketcher.Constraint("Diameter", 12, Q("3 mm")),
    Sketcher.Constraint("Radius", 15, Q("2 mm")),
    Sketcher.Constraint("Radius", 18, Q("58 mm")),
    Sketcher.Constraint("Radius", 55, Q("47.5 mm")),
    Sketcher.Constraint("DistanceY", 2, 1, 2, 2, Q("19 mm")),
    Sketcher.Constraint("Angle", 0, Q("150 deg")),
    Sketcher.Constraint("Distance", 0, Q("19 mm")),
    Sketcher.Constraint("DistanceY", -1, 1, 15, 3, Q("13 mm")),
    Sketcher.Constraint("DistanceX", 13, 1, -1, 1, Q("31 mm")),
    Sketcher.Constraint("DistanceX", 42, 3, -1, 1, Q("88.5 mm")),
    Sketcher.Constraint("DistanceX", 43, 3, -1, 1, Q("63.5 mm")),
    Sketcher.Constraint("DistanceX", 1, 2, -1, 1, Q("96.5 mm")),
    Sketcher.Constraint("DistanceX", 14, 1, -1, 1, Q("32.5 mm")),
    Sketcher.Constraint("DistanceX", 12, 3, -1, 1, Q("44.25 mm")),
    Sketcher.Constraint("DistanceX", 13, 3, -1, 1, Q("31.75 mm")),
    Sketcher.Constraint("DistanceX", 55, 2, -1, 1, Q("23.75 mm")),
    Sketcher.Constraint("Radius", 1, Q("72.13987 mm")),
    Sketcher.Constraint("Radius", 22, Q("79.63987 mm")),
    Sketcher.Constraint("DistanceX", 19, 3, -1, 1, Q("40.5457 mm")),
    Sketcher.Constraint("DistanceX", 16, 1, 16, 2, Q("15.825278 mm")),
    Sketcher.Constraint("DistanceY", -1, 1, 12, 3, Q("76.643248 mm")),
    Sketcher.Constraint("DistanceX", 25, 3, -1, 1, Q("18.029039 mm")),
    Sketcher.Constraint("DistanceY", -1, 1, 14, 1, Q("56.291651 mm")),
])
pad1 = doc.addObject("PartDesign::Pad", "Pad")
body.addObject(pad1)
pad1.Profile = sketch1
pad1.Length = 1.5
pad1.Reversed = True

doc.recompute()
